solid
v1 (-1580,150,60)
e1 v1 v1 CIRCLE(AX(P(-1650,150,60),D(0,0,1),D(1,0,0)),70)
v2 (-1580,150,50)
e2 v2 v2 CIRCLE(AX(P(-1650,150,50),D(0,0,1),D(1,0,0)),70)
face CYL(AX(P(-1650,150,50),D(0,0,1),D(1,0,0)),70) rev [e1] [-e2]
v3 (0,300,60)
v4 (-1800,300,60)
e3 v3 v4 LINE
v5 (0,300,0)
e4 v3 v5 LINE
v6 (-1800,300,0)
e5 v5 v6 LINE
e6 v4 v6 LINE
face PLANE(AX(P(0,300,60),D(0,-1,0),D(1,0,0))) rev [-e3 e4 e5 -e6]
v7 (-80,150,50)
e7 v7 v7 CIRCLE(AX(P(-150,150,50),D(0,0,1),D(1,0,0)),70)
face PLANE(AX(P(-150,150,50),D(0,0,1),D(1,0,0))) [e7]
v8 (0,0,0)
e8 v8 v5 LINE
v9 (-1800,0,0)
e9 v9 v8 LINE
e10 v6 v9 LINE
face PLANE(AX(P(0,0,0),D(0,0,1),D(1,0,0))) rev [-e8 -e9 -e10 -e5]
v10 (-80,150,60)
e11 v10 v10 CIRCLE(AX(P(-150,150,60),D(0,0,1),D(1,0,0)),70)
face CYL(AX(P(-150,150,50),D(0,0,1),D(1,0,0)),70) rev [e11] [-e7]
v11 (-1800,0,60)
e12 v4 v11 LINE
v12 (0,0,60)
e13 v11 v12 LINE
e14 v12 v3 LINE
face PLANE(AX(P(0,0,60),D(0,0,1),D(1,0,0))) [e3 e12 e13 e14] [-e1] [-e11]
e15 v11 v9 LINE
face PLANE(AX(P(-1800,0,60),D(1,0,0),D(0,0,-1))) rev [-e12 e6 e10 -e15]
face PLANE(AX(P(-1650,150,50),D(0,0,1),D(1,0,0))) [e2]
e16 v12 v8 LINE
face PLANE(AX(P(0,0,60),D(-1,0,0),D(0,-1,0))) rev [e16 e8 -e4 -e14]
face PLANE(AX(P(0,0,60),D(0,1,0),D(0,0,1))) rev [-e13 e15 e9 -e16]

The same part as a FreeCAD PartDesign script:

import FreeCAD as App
import Part
import Sketcher
from FreeCAD import Vector
Q = App.Units.Quantity

doc = App.newDocument("Part")
params = doc.addObject("Spreadsheet::Sheet", "Params")
for row, (alias, value) in enumerate([
    ("sketch1_width", "1800 mm"),
    ("sketch1_height", "300 mm"),
    ("pad1_length", "60 mm"),
    ("sketch2_diameter", "140 mm"),
    ("pocket1_length", "10 mm"),
], start=1):
    params.set(f"A{row}", alias)
    params.set(f"B{row}", "=" + value)
    params.setAlias(f"B{row}", alias)

body = doc.addObject("PartDesign::Body", "Body")

sketch1 = doc.addObject("Sketcher::SketchObject", "Sketch")
body.addObject(sketch1)
sketch1.AttachmentSupport = (doc.XY_Plane, [""])
sketch1.MapMode = "FlatFace"
sketch1.addGeometry([
    Part.LineSegment(Vector(-1800, 300, 0), Vector(-1800, 0, 0)),
    Part.LineSegment(Vector(-1800, 0, 0), Vector(0, 0, 0)),
    Part.LineSegment(Vector(0, 0, 0), Vector(0, 300, 0)),
    Part.LineSegment(Vector(0, 300, 0), Vector(-1800, 300, 0)),
], False)
sketch1.addConstraint([
    Sketcher.Constraint("Coincident", 0, 2, 1, 1),
    Sketcher.Constraint("Coincident", 1, 2, 2, 1),
    Sketcher.Constraint("Coincident", 2, 2, 3, 1),
    Sketcher.Constraint("Coincident", 3, 2, 0, 1),
    Sketcher.Constraint("Vertical", 0),
    Sketcher.Constraint("Horizontal", 1),
    Sketcher.Constraint("Vertical", 2),
    Sketcher.Constraint("Horizontal", 3),
    Sketcher.Constraint("Coincident", 1, 2, -1, 1),
    Sketcher.Constraint("DistanceX", 1, 1, 1, 2, Q("1800 mm")),
    Sketcher.Constraint("DistanceY", 0, 2, 0, 1, Q("300 mm")),
])
sketch1.setExpression("Constraints[9]", "Params.sketch1_width")
sketch1.setExpression("Constraints[10]", "Params.sketch1_height")
pad1 = doc.addObject("PartDesign::Pad", "Pad")
body.addObject(pad1)
pad1.Profile = sketch1
pad1.setExpression("Length", "Params.pad1_length")

sketch2 = doc.addObject("Sketcher::SketchObject", "Sketch001")
body.addObject(sketch2)
sketch2.AttachmentSupport = (doc.XY_Plane, [""])
sketch2.MapMode = "FlatFace"
sketch2.AttachmentOffset = App.Placement(Vector(0, 0, 60), App.Rotation())
sketch2.addGeometry([
    Part.Circle(Vector(-150, 150, 0), Vector(0, 0, 1), 70),
    Part.Circle(Vector(-1650, 150, 0), Vector(0, 0, 1), 70),
], False)
sketch2.addConstraint([
    Sketcher.Constraint("Equal", 0, 1),
    Sketcher.Constraint("Horizontal", 0, 3, 1, 3),
    Sketcher.Constraint("Diameter", 0, Q("140 mm")),
    Sketcher.Constraint("DistanceX", 0, 3, -1, 1, Q("150 mm")),
    Sketcher.Constraint("DistanceY", -1, 1, 0, 3, Q("150 mm")),
    Sketcher.Constraint("DistanceX", 1, 3, -1, 1, Q("1650 mm")),
])
sketch2.setExpression("Constraints[2]", "Params.sketch2_diameter")
pocket1 = doc.addObject("PartDesign::Pocket", "Pocket")
body.addObject(pocket1)
pocket1.Profile = sketch2
pocket1.setExpression("Length", "Params.pocket1_length")

doc.recompute()
